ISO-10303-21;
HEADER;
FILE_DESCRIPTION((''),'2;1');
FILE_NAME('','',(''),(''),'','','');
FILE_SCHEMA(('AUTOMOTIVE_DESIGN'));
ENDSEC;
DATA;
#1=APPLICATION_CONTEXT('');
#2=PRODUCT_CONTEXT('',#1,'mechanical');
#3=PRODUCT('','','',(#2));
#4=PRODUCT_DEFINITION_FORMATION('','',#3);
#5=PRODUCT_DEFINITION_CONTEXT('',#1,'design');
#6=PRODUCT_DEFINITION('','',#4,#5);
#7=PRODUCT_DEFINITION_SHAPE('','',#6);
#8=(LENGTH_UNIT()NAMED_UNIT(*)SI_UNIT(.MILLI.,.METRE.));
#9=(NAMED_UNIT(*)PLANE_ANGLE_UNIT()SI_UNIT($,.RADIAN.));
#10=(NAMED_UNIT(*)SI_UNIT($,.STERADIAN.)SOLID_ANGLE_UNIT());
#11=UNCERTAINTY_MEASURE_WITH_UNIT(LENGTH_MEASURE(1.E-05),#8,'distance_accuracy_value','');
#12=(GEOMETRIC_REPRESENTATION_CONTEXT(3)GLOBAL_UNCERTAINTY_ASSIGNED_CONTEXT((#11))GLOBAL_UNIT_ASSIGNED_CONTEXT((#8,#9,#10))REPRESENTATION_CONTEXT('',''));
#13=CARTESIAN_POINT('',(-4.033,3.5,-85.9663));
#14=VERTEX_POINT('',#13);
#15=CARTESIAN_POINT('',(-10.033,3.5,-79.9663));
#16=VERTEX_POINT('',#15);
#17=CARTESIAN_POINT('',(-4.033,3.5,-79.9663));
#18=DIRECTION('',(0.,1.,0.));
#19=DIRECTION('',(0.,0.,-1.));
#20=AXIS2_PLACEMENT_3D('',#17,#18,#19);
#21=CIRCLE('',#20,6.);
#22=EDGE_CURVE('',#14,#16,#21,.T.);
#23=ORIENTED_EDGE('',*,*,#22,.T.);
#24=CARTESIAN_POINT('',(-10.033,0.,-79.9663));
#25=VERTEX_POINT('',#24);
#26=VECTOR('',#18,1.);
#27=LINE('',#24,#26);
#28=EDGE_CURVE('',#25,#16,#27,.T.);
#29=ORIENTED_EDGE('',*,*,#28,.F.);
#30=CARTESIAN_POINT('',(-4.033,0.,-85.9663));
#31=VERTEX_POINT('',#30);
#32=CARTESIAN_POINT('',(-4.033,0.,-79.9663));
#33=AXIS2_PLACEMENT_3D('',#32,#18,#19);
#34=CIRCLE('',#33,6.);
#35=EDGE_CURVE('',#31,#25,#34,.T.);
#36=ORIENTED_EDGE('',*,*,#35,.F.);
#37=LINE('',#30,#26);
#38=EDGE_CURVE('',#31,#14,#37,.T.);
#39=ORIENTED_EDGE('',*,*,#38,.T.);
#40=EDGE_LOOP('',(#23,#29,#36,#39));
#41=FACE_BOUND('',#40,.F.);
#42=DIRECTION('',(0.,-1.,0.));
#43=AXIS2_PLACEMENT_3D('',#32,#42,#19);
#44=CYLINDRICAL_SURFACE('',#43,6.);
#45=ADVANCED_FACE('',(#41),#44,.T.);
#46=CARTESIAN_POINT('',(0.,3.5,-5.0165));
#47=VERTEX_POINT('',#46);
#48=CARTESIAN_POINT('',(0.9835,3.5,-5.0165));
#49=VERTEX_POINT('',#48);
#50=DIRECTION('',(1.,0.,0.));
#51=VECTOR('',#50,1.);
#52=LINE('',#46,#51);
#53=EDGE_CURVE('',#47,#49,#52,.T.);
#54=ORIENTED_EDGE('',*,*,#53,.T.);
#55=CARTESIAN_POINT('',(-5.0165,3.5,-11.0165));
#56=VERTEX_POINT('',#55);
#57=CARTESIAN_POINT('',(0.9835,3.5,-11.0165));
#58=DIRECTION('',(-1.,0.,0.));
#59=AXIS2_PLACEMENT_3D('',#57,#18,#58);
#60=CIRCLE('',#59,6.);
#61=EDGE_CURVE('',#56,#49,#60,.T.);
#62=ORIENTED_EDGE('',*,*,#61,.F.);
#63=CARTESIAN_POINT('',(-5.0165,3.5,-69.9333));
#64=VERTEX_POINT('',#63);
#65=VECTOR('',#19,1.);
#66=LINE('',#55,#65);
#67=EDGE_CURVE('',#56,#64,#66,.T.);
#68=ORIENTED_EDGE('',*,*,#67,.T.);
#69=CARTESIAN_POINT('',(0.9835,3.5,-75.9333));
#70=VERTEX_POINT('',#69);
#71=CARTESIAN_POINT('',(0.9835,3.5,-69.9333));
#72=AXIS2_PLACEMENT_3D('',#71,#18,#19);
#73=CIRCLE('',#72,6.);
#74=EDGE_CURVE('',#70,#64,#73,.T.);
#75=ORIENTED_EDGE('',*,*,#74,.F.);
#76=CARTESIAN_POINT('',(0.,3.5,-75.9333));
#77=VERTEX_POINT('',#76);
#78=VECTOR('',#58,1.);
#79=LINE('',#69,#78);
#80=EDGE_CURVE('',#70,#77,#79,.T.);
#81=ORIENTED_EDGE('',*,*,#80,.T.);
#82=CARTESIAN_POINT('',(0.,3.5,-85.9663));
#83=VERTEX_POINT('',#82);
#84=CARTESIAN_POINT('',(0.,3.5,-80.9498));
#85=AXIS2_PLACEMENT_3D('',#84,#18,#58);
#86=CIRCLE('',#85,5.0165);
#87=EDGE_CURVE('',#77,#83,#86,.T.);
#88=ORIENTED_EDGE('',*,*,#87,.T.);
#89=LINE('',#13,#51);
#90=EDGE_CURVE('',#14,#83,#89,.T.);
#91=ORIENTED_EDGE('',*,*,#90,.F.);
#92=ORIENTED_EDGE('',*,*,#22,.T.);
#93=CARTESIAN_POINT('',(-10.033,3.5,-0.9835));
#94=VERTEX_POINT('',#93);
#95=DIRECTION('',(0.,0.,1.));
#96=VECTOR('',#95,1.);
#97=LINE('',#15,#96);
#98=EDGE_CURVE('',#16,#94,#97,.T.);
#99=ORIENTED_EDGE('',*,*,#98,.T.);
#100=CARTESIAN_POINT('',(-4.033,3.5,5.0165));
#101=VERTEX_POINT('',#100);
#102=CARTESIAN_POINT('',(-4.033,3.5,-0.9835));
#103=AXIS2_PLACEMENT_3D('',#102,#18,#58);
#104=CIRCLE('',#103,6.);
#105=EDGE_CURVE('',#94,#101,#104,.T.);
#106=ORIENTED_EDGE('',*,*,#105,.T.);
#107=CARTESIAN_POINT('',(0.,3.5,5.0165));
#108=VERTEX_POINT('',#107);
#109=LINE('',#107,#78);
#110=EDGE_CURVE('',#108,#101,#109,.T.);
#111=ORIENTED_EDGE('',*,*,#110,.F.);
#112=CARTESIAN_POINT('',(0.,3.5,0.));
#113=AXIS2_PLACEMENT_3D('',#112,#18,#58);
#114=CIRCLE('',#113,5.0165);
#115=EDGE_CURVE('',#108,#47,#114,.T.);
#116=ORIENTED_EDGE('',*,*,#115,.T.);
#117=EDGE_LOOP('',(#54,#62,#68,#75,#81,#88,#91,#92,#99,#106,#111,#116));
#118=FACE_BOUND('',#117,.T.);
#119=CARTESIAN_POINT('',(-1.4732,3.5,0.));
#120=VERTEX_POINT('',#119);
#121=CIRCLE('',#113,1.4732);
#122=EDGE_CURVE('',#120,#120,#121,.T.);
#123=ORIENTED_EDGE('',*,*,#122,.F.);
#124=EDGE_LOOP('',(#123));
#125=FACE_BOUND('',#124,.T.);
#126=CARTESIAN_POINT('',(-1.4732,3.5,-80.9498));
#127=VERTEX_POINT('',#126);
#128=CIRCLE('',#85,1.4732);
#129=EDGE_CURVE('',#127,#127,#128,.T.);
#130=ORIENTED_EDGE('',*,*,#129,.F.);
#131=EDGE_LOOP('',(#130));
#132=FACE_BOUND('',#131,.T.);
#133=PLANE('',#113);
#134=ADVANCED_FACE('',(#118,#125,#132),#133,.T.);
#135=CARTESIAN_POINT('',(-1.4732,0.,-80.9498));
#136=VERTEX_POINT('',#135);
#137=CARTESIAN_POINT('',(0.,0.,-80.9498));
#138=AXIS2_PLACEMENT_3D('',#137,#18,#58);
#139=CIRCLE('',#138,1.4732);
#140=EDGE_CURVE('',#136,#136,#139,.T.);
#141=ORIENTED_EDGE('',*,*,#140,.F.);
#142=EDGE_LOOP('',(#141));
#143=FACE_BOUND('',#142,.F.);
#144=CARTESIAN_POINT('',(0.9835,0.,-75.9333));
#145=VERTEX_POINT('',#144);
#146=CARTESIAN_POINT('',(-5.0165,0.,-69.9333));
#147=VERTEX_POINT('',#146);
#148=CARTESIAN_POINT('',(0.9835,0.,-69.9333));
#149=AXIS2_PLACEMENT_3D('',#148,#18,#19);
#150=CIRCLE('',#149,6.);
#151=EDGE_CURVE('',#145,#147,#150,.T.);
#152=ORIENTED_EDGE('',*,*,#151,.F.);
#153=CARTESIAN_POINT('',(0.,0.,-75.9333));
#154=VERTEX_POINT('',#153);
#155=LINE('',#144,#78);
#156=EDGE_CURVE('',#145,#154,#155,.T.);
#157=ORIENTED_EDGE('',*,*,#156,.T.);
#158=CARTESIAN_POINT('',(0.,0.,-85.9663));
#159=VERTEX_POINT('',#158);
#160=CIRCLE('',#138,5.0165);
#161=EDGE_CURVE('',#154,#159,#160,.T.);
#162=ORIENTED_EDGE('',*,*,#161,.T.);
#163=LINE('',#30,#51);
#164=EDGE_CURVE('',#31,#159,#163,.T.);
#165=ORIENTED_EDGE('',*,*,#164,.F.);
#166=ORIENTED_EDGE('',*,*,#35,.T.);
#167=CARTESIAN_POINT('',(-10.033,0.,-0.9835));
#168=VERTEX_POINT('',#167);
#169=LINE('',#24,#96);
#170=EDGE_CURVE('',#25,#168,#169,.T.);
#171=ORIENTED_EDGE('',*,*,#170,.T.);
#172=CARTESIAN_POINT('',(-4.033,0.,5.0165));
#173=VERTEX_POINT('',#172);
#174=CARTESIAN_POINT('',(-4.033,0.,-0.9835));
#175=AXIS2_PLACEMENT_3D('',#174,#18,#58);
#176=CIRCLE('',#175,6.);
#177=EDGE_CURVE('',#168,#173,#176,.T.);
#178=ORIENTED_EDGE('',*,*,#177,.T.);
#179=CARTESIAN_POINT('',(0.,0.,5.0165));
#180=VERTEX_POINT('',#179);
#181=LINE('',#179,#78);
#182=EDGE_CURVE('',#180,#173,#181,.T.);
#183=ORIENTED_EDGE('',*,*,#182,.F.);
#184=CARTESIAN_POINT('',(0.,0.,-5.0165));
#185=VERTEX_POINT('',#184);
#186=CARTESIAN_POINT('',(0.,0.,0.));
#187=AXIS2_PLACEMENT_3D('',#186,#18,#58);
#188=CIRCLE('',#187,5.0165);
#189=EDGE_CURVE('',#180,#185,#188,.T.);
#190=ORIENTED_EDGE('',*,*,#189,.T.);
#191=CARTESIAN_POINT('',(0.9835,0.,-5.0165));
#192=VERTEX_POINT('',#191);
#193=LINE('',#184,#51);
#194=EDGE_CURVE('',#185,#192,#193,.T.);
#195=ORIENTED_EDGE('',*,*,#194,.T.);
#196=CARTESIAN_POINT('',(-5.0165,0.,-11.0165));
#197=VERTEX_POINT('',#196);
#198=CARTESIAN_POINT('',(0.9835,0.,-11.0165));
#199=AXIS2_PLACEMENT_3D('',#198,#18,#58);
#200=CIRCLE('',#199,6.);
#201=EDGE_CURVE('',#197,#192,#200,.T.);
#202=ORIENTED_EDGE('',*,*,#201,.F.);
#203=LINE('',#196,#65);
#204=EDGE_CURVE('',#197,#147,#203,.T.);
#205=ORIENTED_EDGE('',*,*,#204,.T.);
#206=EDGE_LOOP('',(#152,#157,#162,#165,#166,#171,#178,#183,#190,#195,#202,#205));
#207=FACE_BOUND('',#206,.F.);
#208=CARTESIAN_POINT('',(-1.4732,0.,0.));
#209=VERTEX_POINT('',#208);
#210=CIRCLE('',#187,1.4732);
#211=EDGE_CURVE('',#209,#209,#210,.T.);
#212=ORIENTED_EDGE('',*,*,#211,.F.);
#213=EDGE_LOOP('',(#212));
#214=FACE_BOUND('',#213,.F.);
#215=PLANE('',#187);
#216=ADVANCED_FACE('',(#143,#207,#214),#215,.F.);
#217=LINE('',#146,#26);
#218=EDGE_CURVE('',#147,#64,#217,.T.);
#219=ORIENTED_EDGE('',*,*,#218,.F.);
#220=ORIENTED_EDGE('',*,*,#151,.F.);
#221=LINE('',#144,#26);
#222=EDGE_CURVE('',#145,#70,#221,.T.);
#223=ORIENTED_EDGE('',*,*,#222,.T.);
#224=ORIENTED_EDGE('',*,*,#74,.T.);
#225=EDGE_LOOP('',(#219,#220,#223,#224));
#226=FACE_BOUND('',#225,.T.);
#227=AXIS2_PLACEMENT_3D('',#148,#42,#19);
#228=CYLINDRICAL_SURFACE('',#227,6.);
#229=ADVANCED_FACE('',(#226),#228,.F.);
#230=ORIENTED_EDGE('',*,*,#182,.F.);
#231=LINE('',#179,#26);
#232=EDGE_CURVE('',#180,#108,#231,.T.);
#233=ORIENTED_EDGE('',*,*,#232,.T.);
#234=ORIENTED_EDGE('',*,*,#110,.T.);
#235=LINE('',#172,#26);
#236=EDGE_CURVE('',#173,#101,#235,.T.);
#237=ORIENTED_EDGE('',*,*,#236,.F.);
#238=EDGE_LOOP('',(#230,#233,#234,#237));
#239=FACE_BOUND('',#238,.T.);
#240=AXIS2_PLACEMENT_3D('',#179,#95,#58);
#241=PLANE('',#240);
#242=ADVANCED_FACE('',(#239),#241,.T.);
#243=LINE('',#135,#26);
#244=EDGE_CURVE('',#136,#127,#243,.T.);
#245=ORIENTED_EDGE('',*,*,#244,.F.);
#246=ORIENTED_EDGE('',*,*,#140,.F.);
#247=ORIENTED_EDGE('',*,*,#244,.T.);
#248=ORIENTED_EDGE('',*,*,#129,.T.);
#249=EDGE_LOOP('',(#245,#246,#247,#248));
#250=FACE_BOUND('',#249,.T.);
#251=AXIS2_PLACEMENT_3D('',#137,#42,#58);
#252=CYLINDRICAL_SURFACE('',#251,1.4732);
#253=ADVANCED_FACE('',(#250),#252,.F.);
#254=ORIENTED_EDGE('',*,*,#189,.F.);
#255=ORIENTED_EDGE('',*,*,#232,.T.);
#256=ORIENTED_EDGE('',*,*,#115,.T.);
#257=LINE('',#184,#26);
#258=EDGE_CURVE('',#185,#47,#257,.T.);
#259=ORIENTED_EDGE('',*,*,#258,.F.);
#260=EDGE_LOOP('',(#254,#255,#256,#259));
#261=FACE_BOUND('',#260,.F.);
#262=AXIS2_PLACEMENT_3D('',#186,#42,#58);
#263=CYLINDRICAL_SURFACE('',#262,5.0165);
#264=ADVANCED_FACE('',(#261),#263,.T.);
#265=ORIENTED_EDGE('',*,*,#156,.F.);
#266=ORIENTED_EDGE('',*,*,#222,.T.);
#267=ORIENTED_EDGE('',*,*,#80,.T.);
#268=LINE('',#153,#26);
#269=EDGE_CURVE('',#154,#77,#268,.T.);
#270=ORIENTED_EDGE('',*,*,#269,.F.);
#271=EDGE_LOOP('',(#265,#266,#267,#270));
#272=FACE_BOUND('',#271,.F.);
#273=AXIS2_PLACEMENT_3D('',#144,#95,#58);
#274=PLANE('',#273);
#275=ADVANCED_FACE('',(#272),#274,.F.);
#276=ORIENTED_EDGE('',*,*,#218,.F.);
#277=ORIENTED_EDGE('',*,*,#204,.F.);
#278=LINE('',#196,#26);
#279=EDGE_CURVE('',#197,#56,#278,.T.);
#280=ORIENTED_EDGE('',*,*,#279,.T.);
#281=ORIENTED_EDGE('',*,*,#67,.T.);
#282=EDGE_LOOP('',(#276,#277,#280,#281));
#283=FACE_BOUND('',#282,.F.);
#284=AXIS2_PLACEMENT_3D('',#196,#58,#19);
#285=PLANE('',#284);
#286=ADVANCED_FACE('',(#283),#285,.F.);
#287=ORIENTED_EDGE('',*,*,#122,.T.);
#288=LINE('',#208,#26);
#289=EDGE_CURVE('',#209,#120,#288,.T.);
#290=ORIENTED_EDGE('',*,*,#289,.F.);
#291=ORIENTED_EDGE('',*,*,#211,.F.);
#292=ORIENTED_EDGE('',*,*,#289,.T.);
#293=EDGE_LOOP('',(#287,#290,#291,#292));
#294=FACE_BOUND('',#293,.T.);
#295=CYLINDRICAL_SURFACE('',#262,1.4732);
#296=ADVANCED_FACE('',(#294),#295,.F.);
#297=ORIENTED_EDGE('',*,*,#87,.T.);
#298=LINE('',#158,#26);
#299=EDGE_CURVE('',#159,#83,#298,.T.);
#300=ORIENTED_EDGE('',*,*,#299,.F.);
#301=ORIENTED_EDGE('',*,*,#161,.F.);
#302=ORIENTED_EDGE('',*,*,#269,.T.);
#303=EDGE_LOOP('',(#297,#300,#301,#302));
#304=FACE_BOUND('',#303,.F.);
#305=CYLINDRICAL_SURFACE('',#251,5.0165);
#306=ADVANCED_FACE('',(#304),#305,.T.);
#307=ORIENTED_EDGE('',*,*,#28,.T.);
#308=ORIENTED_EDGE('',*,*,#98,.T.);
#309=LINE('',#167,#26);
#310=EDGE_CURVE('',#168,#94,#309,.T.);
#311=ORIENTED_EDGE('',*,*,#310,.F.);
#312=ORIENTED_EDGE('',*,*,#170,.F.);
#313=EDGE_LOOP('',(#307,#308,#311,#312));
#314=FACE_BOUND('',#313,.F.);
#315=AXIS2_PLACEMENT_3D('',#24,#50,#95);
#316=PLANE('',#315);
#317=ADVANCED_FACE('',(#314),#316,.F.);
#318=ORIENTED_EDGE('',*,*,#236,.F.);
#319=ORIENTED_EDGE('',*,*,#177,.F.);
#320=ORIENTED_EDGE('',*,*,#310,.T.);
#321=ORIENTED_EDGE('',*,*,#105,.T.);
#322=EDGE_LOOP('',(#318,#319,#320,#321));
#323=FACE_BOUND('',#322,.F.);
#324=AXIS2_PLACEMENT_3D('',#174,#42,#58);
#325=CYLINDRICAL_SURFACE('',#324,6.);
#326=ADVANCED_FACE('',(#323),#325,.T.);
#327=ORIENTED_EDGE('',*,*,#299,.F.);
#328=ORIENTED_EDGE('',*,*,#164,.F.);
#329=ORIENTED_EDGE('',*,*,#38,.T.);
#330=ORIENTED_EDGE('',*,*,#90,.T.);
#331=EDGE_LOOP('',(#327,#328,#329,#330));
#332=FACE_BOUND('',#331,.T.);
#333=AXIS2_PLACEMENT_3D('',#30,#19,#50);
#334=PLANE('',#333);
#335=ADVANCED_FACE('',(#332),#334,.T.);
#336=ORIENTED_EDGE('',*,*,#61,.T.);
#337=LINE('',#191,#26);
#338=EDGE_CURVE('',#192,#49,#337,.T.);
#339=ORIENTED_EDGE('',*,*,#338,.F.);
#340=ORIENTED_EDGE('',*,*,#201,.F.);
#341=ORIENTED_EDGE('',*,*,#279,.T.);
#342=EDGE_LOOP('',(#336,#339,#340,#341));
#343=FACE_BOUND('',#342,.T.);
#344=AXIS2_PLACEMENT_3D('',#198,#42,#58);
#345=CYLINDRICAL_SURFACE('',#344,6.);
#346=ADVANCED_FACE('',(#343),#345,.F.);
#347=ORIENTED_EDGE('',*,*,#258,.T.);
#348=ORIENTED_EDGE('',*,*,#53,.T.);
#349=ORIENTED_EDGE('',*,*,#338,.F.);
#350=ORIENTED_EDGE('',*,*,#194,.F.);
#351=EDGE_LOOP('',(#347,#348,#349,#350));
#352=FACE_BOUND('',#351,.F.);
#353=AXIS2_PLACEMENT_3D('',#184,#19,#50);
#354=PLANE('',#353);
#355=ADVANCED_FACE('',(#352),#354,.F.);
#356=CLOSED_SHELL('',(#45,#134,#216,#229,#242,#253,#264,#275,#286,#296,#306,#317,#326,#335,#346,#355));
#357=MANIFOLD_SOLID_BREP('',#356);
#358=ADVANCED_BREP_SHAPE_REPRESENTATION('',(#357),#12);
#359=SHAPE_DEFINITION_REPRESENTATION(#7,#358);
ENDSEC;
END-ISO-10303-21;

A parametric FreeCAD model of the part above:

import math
import FreeCAD as App
import Part
import Sketcher

V = App.Vector
Q = App.Units.Quantity

doc = App.newDocument("Part")
body = doc.addObject("PartDesign::Body", "Body")

sketch1 = body.newObject("Sketcher::SketchObject", "Sketch")
sketch1.AttachmentSupport = (doc.getObject("XZ_Plane"), [""])
sketch1.MapMode = "FlatFace"
sketch1.addGeometry(Part.ArcOfCircle(Part.Circle(V(0, 0, 0), V(0, 0, 1), 5.0165), math.radians(-90), math.radians(90)), False)
sketch1.addGeometry(Part.LineSegment(V(0, -5.0165, 0), V(0.9835, -5.0165, 0)), False)
sketch1.addGeometry(Part.ArcOfCircle(Part.Circle(V(0.9835, -11.0165, 0), V(0, 0, 1), 6), math.radians(90), math.radians(180)), False)
sketch1.addGeometry(Part.LineSegment(V(-5.0165, -11.0165, 0), V(-5.0165, -69.9333, 0)), False)
sketch1.addGeometry(Part.ArcOfCircle(Part.Circle(V(0.9835, -69.9333, 0), V(0, 0, 1), 6), math.radians(180), math.radians(270)), False)
sketch1.addGeometry(Part.LineSegment(V(0.9835, -75.9333, 0), V(0, -75.9333, 0)), False)
sketch1.addGeometry(Part.ArcOfCircle(Part.Circle(V(0, -80.9498, 0), V(0, 0, 1), 5.0165), math.radians(-90), math.radians(90)), False)
sketch1.addGeometry(Part.LineSegment(V(0, -85.9663, 0), V(-4.033, -85.9663, 0)), False)
sketch1.addGeometry(Part.ArcOfCircle(Part.Circle(V(-4.033, -79.9663, 0), V(0, 0, 1), 6), math.radians(180), math.radians(270)), False)
sketch1.addGeometry(Part.LineSegment(V(-10.033, -79.9663, 0), V(-10.033, -0.9835, 0)), False)
sketch1.addGeometry(Part.ArcOfCircle(Part.Circle(V(-4.033, -0.9835, 0), V(0, 0, 1), 6), math.radians(90), math.radians(180)), False)
sketch1.addGeometry(Part.LineSegment(V(-4.033, 5.0165, 0), V(0, 5.0165, 0)), False)
sketch1.addGeometry(Part.Circle(V(0, 0, 0), V(0, 0, 1), 1.4732), False)
sketch1.addGeometry(Part.Circle(V(0, -80.9498, 0), V(0, 0, 1), 1.4732), False)
sketch1.addConstraint(Sketcher.Constraint("Tangent", 0, 1, 1, 1))
sketch1.addConstraint(Sketcher.Constraint("Tangent", 1, 2, 2, 1))
sketch1.addConstraint(Sketcher.Constraint("Tangent", 2, 2, 3, 1))
sketch1.addConstraint(Sketcher.Constraint("Tangent", 3, 2, 4, 1))
sketch1.addConstraint(Sketcher.Constraint("Tangent", 4, 2, 5, 1))
sketch1.addConstraint(Sketcher.Constraint("Tangent", 5, 2, 6, 2))
sketch1.addConstraint(Sketcher.Constraint("Tangent", 6, 1, 7, 1))
sketch1.addConstraint(Sketcher.Constraint("Tangent", 7, 2, 8, 2))
sketch1.addConstraint(Sketcher.Constraint("Tangent", 8, 1, 9, 1))
sketch1.addConstraint(Sketcher.Constraint("Tangent", 9, 2, 10, 2))
sketch1.addConstraint(Sketcher.Constraint("Tangent", 10, 1, 11, 1))
sketch1.addConstraint(Sketcher.Constraint("Tangent", 11, 2, 0, 2))
sketch1.addConstraint(Sketcher.Constraint("Horizontal", 1))
sketch1.addConstraint(Sketcher.Constraint("Vertical", 3))
sketch1.addConstraint(Sketcher.Constraint("Horizontal", 5))
sketch1.addConstraint(Sketcher.Constraint("Horizontal", 7))
sketch1.addConstraint(Sketcher.Constraint("Vertical", 9))
sketch1.addConstraint(Sketcher.Constraint("Horizontal", 11))
sketch1.addConstraint(Sketcher.Constraint("Coincident", 0, 3, -1, 1))
sketch1.addConstraint(Sketcher.Constraint("Coincident", 12, 3, -1, 1))
sketch1.addConstraint(Sketcher.Constraint("Coincident", 13, 3, 6, 3))
sketch1.addConstraint(Sketcher.Constraint("Equal", 2, 4))
sketch1.addConstraint(Sketcher.Constraint("Equal", 0, 6))
sketch1.addConstraint(Sketcher.Constraint("Equal", 4, 8))
sketch1.addConstraint(Sketcher.Constraint("Equal", 8, 10))
sketch1.addConstraint(Sketcher.Constraint("Equal", 12, 13))
sketch1.addConstraint(Sketcher.Constraint("PointOnObject", 6, 3, -2))
sketch1.addConstraint(Sketcher.Constraint("Diameter", 12, Q("0.116 in")))
sketch1.addConstraint(Sketcher.Constraint("Radius", 0, Q("0.1975 in")))
sketch1.addConstraint(Sketcher.Constraint("Radius", 2, 6.0))
sketch1.addConstraint(Sketcher.Constraint("DistanceY", 6, 3, -1, 1, Q("3.187 in")))
sketch1.addConstraint(Sketcher.Constraint("DistanceX", 8, 1, -1, 1, Q("0.395 in")))
sketch1.addConstraint(Sketcher.Constraint("DistanceX", 1, 1, 1, 2, 0.9835))
pad1 = body.newObject("PartDesign::Pad", "Pad")
pad1.Profile = sketch1
pad1.Length = Q("0.1377953 in")
pad1.Reversed = True

doc.recompute()
